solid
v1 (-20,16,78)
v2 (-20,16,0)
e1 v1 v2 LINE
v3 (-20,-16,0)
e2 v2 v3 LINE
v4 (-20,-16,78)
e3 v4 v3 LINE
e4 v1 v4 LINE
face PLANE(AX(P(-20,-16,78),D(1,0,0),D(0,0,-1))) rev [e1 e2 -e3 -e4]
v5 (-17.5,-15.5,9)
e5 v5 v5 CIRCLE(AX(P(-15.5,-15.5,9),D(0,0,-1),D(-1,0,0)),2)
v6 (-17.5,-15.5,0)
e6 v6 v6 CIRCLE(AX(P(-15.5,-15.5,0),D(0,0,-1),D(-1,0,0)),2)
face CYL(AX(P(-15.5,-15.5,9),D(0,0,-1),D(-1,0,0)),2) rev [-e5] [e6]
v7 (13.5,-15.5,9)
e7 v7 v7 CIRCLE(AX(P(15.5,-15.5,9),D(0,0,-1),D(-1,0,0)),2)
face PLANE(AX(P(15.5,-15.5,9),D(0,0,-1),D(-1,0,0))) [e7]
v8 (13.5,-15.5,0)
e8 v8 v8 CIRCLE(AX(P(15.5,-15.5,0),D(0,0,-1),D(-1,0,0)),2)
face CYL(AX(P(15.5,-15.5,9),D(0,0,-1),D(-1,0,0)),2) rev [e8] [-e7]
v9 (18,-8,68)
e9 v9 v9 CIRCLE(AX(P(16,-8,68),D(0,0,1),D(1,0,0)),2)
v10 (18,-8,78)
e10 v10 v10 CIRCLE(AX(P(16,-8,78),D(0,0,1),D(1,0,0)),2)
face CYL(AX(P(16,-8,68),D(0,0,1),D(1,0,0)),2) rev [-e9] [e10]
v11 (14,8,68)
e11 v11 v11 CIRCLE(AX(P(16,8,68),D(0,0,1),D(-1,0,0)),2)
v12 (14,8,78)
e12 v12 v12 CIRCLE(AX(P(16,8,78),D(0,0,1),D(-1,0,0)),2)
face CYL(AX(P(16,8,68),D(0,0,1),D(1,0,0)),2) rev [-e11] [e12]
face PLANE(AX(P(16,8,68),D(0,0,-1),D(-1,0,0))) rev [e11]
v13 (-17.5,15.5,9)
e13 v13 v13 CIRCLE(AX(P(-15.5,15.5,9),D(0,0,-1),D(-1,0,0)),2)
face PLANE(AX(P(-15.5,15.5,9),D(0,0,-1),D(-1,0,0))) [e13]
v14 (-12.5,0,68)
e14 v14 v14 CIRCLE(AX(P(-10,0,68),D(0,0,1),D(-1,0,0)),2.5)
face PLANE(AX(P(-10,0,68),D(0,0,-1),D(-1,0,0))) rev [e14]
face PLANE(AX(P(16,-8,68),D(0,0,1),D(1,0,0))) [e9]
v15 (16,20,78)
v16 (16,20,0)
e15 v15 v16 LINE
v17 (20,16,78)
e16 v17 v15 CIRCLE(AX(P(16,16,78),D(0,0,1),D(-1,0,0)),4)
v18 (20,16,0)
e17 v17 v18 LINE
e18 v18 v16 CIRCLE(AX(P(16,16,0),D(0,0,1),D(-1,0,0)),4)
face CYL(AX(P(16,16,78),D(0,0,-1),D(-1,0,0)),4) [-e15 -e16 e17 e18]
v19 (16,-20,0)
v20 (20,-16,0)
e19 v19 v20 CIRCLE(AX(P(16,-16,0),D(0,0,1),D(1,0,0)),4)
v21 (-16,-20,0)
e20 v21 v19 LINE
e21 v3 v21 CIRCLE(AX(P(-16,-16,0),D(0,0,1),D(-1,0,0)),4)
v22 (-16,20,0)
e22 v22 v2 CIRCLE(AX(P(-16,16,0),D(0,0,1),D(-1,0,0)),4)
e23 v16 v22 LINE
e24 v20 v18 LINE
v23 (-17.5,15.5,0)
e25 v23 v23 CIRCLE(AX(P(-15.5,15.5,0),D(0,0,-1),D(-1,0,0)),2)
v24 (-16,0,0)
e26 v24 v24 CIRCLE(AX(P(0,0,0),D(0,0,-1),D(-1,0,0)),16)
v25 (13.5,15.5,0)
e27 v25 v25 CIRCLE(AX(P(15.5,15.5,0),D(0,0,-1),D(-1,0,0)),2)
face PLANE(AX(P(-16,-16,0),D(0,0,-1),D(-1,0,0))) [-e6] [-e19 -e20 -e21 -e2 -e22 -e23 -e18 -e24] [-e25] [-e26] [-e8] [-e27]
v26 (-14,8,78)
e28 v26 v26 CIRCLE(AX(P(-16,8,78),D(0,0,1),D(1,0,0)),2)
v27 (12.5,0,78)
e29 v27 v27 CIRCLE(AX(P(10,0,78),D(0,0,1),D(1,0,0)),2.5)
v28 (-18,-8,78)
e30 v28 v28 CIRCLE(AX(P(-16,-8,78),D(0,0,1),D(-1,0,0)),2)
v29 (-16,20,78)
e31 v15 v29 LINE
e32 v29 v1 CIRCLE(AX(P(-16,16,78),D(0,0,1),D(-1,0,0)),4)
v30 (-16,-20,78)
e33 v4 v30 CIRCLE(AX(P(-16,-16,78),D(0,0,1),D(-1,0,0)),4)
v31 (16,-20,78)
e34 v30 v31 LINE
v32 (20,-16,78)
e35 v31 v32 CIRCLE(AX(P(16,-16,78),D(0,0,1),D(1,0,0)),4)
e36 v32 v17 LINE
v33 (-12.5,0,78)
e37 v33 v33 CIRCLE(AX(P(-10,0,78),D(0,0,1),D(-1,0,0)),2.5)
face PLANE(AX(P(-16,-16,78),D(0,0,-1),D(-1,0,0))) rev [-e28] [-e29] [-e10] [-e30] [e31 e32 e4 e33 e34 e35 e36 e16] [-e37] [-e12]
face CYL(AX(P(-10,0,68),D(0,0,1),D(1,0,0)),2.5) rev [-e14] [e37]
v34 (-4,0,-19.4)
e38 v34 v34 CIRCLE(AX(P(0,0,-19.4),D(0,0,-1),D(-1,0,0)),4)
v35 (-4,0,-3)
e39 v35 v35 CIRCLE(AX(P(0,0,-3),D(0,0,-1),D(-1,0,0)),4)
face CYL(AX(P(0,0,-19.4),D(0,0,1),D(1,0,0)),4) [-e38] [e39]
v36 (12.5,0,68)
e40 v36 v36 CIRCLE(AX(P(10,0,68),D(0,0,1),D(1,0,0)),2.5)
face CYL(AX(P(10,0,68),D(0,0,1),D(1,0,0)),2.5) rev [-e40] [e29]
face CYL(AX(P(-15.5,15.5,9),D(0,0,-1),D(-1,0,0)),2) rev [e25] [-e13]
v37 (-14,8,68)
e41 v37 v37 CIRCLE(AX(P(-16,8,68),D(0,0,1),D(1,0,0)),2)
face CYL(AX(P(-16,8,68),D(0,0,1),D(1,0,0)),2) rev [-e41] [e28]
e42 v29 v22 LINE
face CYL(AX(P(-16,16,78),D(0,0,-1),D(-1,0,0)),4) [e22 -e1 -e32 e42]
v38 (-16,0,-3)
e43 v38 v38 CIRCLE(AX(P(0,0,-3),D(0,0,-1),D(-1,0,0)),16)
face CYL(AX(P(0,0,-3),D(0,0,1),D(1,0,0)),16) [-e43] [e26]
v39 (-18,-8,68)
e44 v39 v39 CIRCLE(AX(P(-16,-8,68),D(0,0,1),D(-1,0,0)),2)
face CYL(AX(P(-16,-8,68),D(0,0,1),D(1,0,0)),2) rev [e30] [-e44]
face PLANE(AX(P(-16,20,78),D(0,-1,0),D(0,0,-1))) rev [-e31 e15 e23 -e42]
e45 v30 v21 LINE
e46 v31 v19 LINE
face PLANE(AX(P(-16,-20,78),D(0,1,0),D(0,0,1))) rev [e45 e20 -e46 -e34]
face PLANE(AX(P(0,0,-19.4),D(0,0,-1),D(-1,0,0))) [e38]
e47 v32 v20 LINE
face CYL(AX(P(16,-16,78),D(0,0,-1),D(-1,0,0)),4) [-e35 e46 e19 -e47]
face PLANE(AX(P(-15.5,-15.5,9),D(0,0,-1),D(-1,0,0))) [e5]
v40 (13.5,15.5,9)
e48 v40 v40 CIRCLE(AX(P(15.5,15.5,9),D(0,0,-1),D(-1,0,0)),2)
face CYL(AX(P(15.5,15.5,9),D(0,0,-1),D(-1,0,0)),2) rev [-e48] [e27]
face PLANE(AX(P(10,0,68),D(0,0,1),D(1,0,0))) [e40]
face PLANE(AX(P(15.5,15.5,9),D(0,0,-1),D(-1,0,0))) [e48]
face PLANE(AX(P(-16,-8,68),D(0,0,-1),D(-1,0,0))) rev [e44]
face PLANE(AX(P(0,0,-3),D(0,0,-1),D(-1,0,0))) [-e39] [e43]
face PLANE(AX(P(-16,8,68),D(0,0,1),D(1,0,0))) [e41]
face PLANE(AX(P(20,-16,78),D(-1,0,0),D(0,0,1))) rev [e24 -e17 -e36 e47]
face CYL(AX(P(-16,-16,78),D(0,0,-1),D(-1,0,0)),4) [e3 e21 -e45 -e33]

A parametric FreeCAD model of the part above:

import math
import FreeCAD as App
import Part
import Sketcher

doc = App.newDocument("Part")
params = doc.addObject("Spreadsheet::Sheet", "Params")
for row, (alias, value) in enumerate([
    ("sketch1_radius", "4 mm"),
    ("sketch1_width", "32 mm"),
    ("pad1_length", "78 mm"),
    ("sketch2_diameter", "32 mm"),
    ("pad2_length", "3 mm"),
    ("sketch3_diameter", "8 mm"),
    ("pad3_length", "16.4 mm"),
    ("sketch4_diameter", "4 mm"),
    ("pocket1_length", "9 mm"),
    ("sketch5_diameter", "4 mm"),
    ("pocket2_length", "10 mm"),
    ("sketch6_diameter", "5 mm"),
    ("pocket3_length", "10 mm"),
], start=1):
    params.set(f"A{row}", alias)
    params.set(f"B{row}", "=" + value)
    params.setAlias(f"B{row}", alias)

body = doc.addObject("PartDesign::Body", "Body")

# Sketch on XY plane
sketch1 = doc.addObject("Sketcher::SketchObject", "Sketch")
body.addObject(sketch1)
sketch1.AttachmentSupport = (doc.XY_Plane, [""])
sketch1.MapMode = "FlatFace"
sketch1.addGeometry(Part.LineSegment(App.Vector(-16, -20, 0), App.Vector(16, -20, 0)), False)
sketch1.addGeometry(Part.ArcOfCircle(Part.Circle(App.Vector(16, -16, 0), App.Vector(0, 0, 1), 4), math.radians(-90), math.radians(0)), False)
sketch1.addGeometry(Part.LineSegment(App.Vector(20, -16, 0), App.Vector(20, 16, 0)), False)
sketch1.addGeometry(Part.ArcOfCircle(Part.Circle(App.Vector(16, 16, 0), App.Vector(0, 0, 1), 4), math.radians(0), math.radians(90)), False)
sketch1.addGeometry(Part.LineSegment(App.Vector(16, 20, 0), App.Vector(-16, 20, 0)), False)
sketch1.addGeometry(Part.ArcOfCircle(Part.Circle(App.Vector(-16, 16, 0), App.Vector(0, 0, 1), 4), math.radians(90), math.radians(180)), False)
sketch1.addGeometry(Part.LineSegment(App.Vector(-20, 16, 0), App.Vector(-20, -16, 0)), False)
sketch1.addGeometry(Part.ArcOfCircle(Part.Circle(App.Vector(-16, -16, 0), App.Vector(0, 0, 1), 4), math.radians(180), math.radians(270)), False)
sketch1.addConstraint(Sketcher.Constraint("Tangent", 0, 2, 1, 1))
sketch1.addConstraint(Sketcher.Constraint("Tangent", 1, 2, 2, 1))
sketch1.addConstraint(Sketcher.Constraint("Tangent", 2, 2, 3, 1))
sketch1.addConstraint(Sketcher.Constraint("Tangent", 3, 2, 4, 1))
sketch1.addConstraint(Sketcher.Constraint("Tangent", 4, 2, 5, 1))
sketch1.addConstraint(Sketcher.Constraint("Tangent", 5, 2, 6, 1))
sketch1.addConstraint(Sketcher.Constraint("Tangent", 6, 2, 7, 1))
sketch1.addConstraint(Sketcher.Constraint("Tangent", 7, 2, 0, 1))
sketch1.addConstraint(Sketcher.Constraint("Horizontal", 0))
sketch1.addConstraint(Sketcher.Constraint("Vertical", 2))
sketch1.addConstraint(Sketcher.Constraint("Horizontal", 4))
sketch1.addConstraint(Sketcher.Constraint("Vertical", 6))
sketch1.addConstraint(Sketcher.Constraint("Equal", 1, 3))
sketch1.addConstraint(Sketcher.Constraint("Equal", 3, 5))
sketch1.addConstraint(Sketcher.Constraint("Equal", 5, 7))
sketch1.addConstraint(Sketcher.Constraint("Symmetric", 1, 3, 5, 3, -1, 1))
sketch1.addConstraint(Sketcher.Constraint("Equal", 4, 2))
sketch1.addConstraint(Sketcher.Constraint("Radius", 1, 4.0))
sketch1.addConstraint(Sketcher.Constraint("DistanceX", 0, 1, 0, 2, 32.0))
sketch1.setExpression("Constraints[17]", "Params.sketch1_radius")
sketch1.setExpression("Constraints[18]", "Params.sketch1_width")
pad1 = doc.addObject("PartDesign::Pad", "Pad")
body.addObject(pad1)
pad1.Profile = sketch1
pad1.setExpression("Length", "Params.pad1_length")

# Sketch on XY plane
sketch2 = doc.addObject("Sketcher::SketchObject", "Sketch001")
body.addObject(sketch2)
sketch2.AttachmentSupport = (doc.XY_Plane, [""])
sketch2.MapMode = "FlatFace"
sketch2.addGeometry(Part.Circle(App.Vector(0, 0, 0), App.Vector(0, 0, 1), 16), False)
sketch2.addConstraint(Sketcher.Constraint("Coincident", 0, 3, -1, 1))
sketch2.addConstraint(Sketcher.Constraint("Diameter", 0, 32.0))
sketch2.setExpression("Constraints[1]", "Params.sketch2_diameter")
pad2 = doc.addObject("PartDesign::Pad", "Pad001")
body.addObject(pad2)
pad2.Profile = sketch2
pad2.setExpression("Length", "Params.pad2_length")
pad2.Reversed = True

# Sketch on XY plane
sketch3 = doc.addObject("Sketcher::SketchObject", "Sketch002")
body.addObject(sketch3)
sketch3.AttachmentSupport = (doc.XY_Plane, [""])
sketch3.MapMode = "FlatFace"
sketch3.AttachmentOffset = App.Placement(App.Vector(0, 0, -3), App.Rotation())
sketch3.addGeometry(Part.Circle(App.Vector(0, 0, 0), App.Vector(0, 0, 1), 4), False)
sketch3.addConstraint(Sketcher.Constraint("Coincident", 0, 3, -1, 1))
sketch3.addConstraint(Sketcher.Constraint("Diameter", 0, 8.0))
sketch3.setExpression("Constraints[1]", "Params.sketch3_diameter")
pad3 = doc.addObject("PartDesign::Pad", "Pad002")
body.addObject(pad3)
pad3.Profile = sketch3
pad3.setExpression("Length", "Params.pad3_length")
pad3.Reversed = True

# Sketch on XY plane
sketch4 = doc.addObject("Sketcher::SketchObject", "Sketch003")
body.addObject(sketch4)
sketch4.AttachmentSupport = (doc.XY_Plane, [""])
sketch4.MapMode = "FlatFace"
sketch4.addGeometry(Part.Circle(App.Vector(15.5, 15.5, 0), App.Vector(0, 0, 1), 2), False)
sketch4.addGeometry(Part.Circle(App.Vector(-15.5, 15.5, 0), App.Vector(0, 0, 1), 2), False)
sketch4.addGeometry(Part.Circle(App.Vector(-15.5, -15.5, 0), App.Vector(0, 0, 1), 2), False)
sketch4.addGeometry(Part.Circle(App.Vector(15.5, -15.5, 0), App.Vector(0, 0, 1), 2), False)
sketch4.addConstraint(Sketcher.Constraint("Equal", 0, 1))
sketch4.addConstraint(Sketcher.Constraint("Equal", 1, 2))
sketch4.addConstraint(Sketcher.Constraint("Equal", 2, 3))
sketch4.addConstraint(Sketcher.Constraint("Symmetric", 0, 3, 2, 3, -1, 1))
sketch4.addConstraint(Sketcher.Constraint("Symmetric", 1, 3, 3, 3, -1, 1))
sketch4.addConstraint(Sketcher.Constraint("Symmetric", 0, 3, 1, 3, -2))
sketch4.addConstraint(Sketcher.Constraint("Diameter", 0, 4.0))
sketch4.addConstraint(Sketcher.Constraint("DistanceX", 1, 3, 0, 3, 31.0))
sketch4.addConstraint(Sketcher.Constraint("DistanceY", 2, 3, 1, 3, 31.0))
sketch4.setExpression("Constraints[6]", "Params.sketch4_diameter")
pocket1 = doc.addObject("PartDesign::Pocket", "Pocket")
body.addObject(pocket1)
pocket1.Profile = sketch4
pocket1.setExpression("Length", "Params.pocket1_length")
pocket1.Reversed = True

# Sketch on XY plane
sketch5 = doc.addObject("Sketcher::SketchObject", "Sketch004")
body.addObject(sketch5)
sketch5.AttachmentSupport = (doc.XY_Plane, [""])
sketch5.MapMode = "FlatFace"
sketch5.AttachmentOffset = App.Placement(App.Vector(0, 0, 78), App.Rotation())
sketch5.addGeometry(Part.Circle(App.Vector(-16, 8, 0), App.Vector(0, 0, 1), 2), False)
sketch5.addGeometry(Part.Circle(App.Vector(16, 8, 0), App.Vector(0, 0, 1), 2), False)
sketch5.addGeometry(Part.Circle(App.Vector(-16, -8, 0), App.Vector(0, 0, 1), 2), False)
sketch5.addGeometry(Part.Circle(App.Vector(16, -8, 0), App.Vector(0, 0, 1), 2), False)
sketch5.addConstraint(Sketcher.Constraint("Equal", 0, 1))
sketch5.addConstraint(Sketcher.Constraint("Equal", 1, 2))
sketch5.addConstraint(Sketcher.Constraint("Equal", 2, 3))
sketch5.addConstraint(Sketcher.Constraint("Symmetric", 1, 3, 2, 3, -1, 1))
sketch5.addConstraint(Sketcher.Constraint("Symmetric", 0, 3, 3, 3, -1, 1))
sketch5.addConstraint(Sketcher.Constraint("Symmetric", 0, 3, 1, 3, -2))
sketch5.addConstraint(Sketcher.Constraint("Diameter", 0, 4.0))
sketch5.addConstraint(Sketcher.Constraint("DistanceX", 0, 3, -1, 1, 16.0))
sketch5.addConstraint(Sketcher.Constraint("DistanceY", -1, 1, 0, 3, 8.0))
sketch5.setExpression("Constraints[6]", "Params.sketch5_diameter")
pocket2 = doc.addObject("PartDesign::Pocket", "Pocket001")
body.addObject(pocket2)
pocket2.Profile = sketch5
pocket2.setExpression("Length", "Params.pocket2_length")

# Sketch on XY plane
sketch6 = doc.addObject("Sketcher::SketchObject", "Sketch005")
body.addObject(sketch6)
sketch6.AttachmentSupport = (doc.XY_Plane, [""])
sketch6.MapMode = "FlatFace"
sketch6.AttachmentOffset = App.Placement(App.Vector(0, 0, 78), App.Rotation())
sketch6.addGeometry(Part.Circle(App.Vector(10, 0, 0), App.Vector(0, 0, 1), 2.5), False)
sketch6.addGeometry(Part.Circle(App.Vector(-10, 0, 0), App.Vector(0, 0, 1), 2.5), False)
sketch6.addConstraint(Sketcher.Constraint("Equal", 0, 1))
sketch6.addConstraint(Sketcher.Constraint("Symmetric", 0, 3, 1, 3, -1, 1))
sketch6.addConstraint(Sketcher.Constraint("PointOnObject", 0, 3, -1))
sketch6.addConstraint(Sketcher.Constraint("Diameter", 0, 5.0))
sketch6.addConstraint(Sketcher.Constraint("DistanceX", -1, 1, 0, 3, 10.0))
sketch6.setExpression("Constraints[3]", "Params.sketch6_diameter")
pocket3 = doc.addObject("PartDesign::Pocket", "Pocket002")
body.addObject(pocket3)
pocket3.Profile = sketch6
pocket3.setExpression("Length", "Params.pocket3_length")

doc.recompute()
